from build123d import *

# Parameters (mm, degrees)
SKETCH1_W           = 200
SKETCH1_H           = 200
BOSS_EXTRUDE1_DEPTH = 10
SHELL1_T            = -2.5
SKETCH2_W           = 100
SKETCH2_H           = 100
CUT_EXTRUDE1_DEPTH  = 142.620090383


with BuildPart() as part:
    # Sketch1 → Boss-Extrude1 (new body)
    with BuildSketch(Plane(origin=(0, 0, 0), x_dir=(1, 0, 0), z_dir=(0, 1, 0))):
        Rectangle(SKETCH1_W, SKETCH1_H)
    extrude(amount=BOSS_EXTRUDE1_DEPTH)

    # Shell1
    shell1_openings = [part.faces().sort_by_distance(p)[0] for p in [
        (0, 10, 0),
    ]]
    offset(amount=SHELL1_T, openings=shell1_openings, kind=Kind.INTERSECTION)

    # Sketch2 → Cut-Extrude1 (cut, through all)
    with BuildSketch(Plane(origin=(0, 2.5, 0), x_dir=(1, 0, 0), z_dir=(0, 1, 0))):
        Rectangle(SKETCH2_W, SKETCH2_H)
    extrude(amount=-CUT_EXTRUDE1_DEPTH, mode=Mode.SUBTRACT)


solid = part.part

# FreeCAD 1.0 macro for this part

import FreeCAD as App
import Part
import Sketcher


def faces_at(feature, points):
    """Names of the faces that lie closest to the given points."""
    faces = feature.Shape.Faces
    near = lambda p: min(range(len(faces)), key=lambda i: faces[i].distToShape(Part.Vertex(*p))[0])
    return sorted({f"Face{near(p) + 1}" for p in points})

doc = App.newDocument("Part")
body = doc.addObject("PartDesign::Body", "Body")

# Sketch on XZ plane
sketch1 = body.newObject("Sketcher::SketchObject", "Sketch")
sketch1.AttachmentSupport = (doc.getObject("XZ_Plane"), [""])
sketch1.MapMode = "FlatFace"
sketch1.addGeometry(Part.LineSegment(App.Vector(-100, -100, 0), App.Vector(-100, 100, 0)), False)
sketch1.addGeometry(Part.LineSegment(App.Vector(-100, 100, 0), App.Vector(100, 100, 0)), False)
sketch1.addGeometry(Part.LineSegment(App.Vector(100, 100, 0), App.Vector(100, -100, 0)), False)
sketch1.addGeometry(Part.LineSegment(App.Vector(100, -100, 0), App.Vector(-100, -100, 0)), False)
sketch1.addConstraint(Sketcher.Constraint("Coincident", 0, 2, 1, 1))
sketch1.addConstraint(Sketcher.Constraint("Coincident", 1, 2, 2, 1))
sketch1.addConstraint(Sketcher.Constraint("Coincident", 2, 2, 3, 1))
sketch1.addConstraint(Sketcher.Constraint("Coincident", 3, 2, 0, 1))
sketch1.addConstraint(Sketcher.Constraint("Vertical", 0))
sketch1.addConstraint(Sketcher.Constraint("Horizontal", 1))
sketch1.addConstraint(Sketcher.Constraint("Vertical", 2))
sketch1.addConstraint(Sketcher.Constraint("Horizontal", 3))
sketch1.addConstraint(Sketcher.Constraint("Symmetric", 0, 2, 2, 2, -1, 1))
sketch1.addConstraint(Sketcher.Constraint("Equal", 3, 0))
sketch1.addConstraint(Sketcher.Constraint("DistanceX", 1, 1, 1, 2, 200.0))
pad1 = body.newObject("PartDesign::Pad", "Pad")
pad1.Profile = sketch1
pad1.Length = 10
pad1.Reversed = True
doc.recompute()

thickness = body.newObject("PartDesign::Thickness", "Thickness")
thickness.Base = (pad1, faces_at(pad1, [(0, 10, 0)]))
thickness.Value = 2.5
thickness.Reversed = True
thickness.Join = "Intersection"

# Sketch on XZ plane
sketch2 = body.newObject("Sketcher::SketchObject", "Sketch001")
sketch2.AttachmentSupport = (doc.getObject("XZ_Plane"), [""])
sketch2.MapMode = "FlatFace"
sketch2.AttachmentOffset = App.Placement(App.Vector(0, 0, -2.5), App.Rotation())
sketch2.addGeometry(Part.LineSegment(App.Vector(-50, -50, 0), App.Vector(-50, 50, 0)), False)
sketch2.addGeometry(Part.LineSegment(App.Vector(-50, 50, 0), App.Vector(50, 50, 0)), False)
sketch2.addGeometry(Part.LineSegment(App.Vector(50, 50, 0), App.Vector(50, -50, 0)), False)
sketch2.addGeometry(Part.LineSegment(App.Vector(50, -50, 0), App.Vector(-50, -50, 0)), False)
sketch2.addConstraint(Sketcher.Constraint("Coincident", 0, 2, 1, 1))
sketch2.addConstraint(Sketcher.Constraint("Coincident", 1, 2, 2, 1))
sketch2.addConstraint(Sketcher.Constraint("Coincident", 2, 2, 3, 1))
sketch2.addConstraint(Sketcher.Constraint("Coincident", 3, 2, 0, 1))
sketch2.addConstraint(Sketcher.Constraint("Vertical", 0))
sketch2.addConstraint(Sketcher.Constraint("Horizontal", 1))
sketch2.addConstraint(Sketcher.Constraint("Vertical", 2))
sketch2.addConstraint(Sketcher.Constraint("Horizontal", 3))
sketch2.addConstraint(Sketcher.Constraint("Symmetric", 0, 2, 2, 2, -1, 1))
sketch2.addConstraint(Sketcher.Constraint("Equal", 3, 0))
sketch2.addConstraint(Sketcher.Constraint("DistanceX", 1, 1, 1, 2, 100.0))
pocket1 = body.newObject("PartDesign::Pocket", "Pocket")
pocket1.Profile = sketch2
pocket1.Type = "ThroughAll"
pocket1.Reversed = True

doc.recompute()
